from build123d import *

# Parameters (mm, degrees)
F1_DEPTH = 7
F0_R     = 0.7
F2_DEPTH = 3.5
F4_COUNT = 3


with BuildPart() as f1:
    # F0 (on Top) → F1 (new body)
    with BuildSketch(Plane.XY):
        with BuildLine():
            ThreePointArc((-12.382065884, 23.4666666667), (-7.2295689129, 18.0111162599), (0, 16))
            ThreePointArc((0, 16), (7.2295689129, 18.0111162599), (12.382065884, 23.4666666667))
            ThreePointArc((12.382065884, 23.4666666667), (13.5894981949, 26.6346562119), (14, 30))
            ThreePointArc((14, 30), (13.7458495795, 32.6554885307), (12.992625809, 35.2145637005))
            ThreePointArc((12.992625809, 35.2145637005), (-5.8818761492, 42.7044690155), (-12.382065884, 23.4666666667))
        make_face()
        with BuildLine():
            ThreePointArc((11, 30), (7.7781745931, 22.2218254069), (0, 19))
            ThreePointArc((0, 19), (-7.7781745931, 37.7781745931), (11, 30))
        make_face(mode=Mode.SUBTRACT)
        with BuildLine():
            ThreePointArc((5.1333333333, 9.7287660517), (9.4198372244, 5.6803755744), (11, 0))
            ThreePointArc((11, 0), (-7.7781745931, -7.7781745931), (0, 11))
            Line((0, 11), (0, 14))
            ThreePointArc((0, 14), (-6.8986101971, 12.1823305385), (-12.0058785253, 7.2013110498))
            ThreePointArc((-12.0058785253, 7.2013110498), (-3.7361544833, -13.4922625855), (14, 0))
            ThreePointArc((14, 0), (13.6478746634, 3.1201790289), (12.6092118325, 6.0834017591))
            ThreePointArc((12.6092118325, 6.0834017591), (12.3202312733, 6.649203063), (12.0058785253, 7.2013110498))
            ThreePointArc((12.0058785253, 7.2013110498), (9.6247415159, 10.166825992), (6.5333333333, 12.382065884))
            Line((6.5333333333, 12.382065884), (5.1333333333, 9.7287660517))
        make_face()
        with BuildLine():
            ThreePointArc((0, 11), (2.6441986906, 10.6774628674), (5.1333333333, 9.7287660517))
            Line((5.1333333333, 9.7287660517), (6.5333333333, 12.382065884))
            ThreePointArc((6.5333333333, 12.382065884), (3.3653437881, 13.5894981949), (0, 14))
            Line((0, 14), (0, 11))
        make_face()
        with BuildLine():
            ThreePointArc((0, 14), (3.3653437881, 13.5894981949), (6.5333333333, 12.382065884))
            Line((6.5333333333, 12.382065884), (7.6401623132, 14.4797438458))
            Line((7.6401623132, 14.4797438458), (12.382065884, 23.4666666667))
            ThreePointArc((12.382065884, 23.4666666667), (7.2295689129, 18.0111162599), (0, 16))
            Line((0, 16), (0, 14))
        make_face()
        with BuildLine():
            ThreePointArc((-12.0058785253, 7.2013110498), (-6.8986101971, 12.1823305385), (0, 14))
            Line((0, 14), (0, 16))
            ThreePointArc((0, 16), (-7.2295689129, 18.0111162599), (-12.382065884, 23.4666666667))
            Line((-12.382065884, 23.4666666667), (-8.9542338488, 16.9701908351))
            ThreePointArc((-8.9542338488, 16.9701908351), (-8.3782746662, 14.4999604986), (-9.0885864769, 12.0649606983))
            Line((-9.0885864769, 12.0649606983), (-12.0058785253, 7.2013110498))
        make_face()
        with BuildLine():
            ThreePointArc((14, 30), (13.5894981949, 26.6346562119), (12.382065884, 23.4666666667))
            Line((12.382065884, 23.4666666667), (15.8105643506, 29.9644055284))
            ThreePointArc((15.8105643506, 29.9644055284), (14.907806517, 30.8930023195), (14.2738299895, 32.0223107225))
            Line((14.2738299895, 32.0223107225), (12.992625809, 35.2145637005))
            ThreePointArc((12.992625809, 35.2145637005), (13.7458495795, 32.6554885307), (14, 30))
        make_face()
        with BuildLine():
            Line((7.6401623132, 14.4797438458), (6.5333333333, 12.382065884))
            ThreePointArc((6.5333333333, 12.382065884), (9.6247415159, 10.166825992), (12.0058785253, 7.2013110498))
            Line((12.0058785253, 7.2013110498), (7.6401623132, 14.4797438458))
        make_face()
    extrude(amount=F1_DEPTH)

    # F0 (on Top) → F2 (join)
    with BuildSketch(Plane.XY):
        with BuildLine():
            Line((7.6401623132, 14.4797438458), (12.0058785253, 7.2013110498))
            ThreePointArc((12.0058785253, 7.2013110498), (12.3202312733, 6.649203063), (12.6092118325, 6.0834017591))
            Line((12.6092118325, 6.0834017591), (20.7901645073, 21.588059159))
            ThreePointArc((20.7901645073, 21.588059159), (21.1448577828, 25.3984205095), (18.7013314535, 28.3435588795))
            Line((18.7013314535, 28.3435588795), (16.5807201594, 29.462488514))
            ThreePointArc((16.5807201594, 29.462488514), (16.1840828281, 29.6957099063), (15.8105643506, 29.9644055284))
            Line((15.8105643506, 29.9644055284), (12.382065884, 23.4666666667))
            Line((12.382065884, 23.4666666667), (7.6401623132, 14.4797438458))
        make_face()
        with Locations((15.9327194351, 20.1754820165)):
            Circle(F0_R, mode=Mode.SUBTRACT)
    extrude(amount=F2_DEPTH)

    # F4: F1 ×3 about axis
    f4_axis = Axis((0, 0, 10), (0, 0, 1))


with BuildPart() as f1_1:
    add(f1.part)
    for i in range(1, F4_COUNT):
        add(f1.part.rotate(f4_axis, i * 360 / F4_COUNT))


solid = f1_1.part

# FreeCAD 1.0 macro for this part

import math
import FreeCAD as App
import Part
import Sketcher
Q = App.Units.Quantity

doc = App.newDocument("Part")
body = doc.addObject("PartDesign::Body", "Body")

sketch1 = body.newObject("Sketcher::SketchObject", "Sketch")
sketch1.AttachmentSupport = (doc.getObject("XY_Plane"), [""])
sketch1.MapMode = "FlatFace"
sketch1.addGeometry([
    Part.ArcOfCircle(Part.Circle(App.Vector(0, 0, 0), App.Vector(0, 0, 1), 14), math.radians(149), math.radians(360)),
    Part.ArcOfCircle(Part.Circle(App.Vector(0, 0, 0), App.Vector(0, 0, 1), 14), math.radians(0), math.radians(26)),
    Part.ArcOfCircle(Part.Circle(App.Vector(0, 0, 0), App.Vector(0, 0, 1), 14), math.radians(25.76), math.radians(30.96)),
    Part.LineSegment(App.Vector(12, 7.2, 0), App.Vector(7.6, 14.5, 0)),
    Part.LineSegment(App.Vector(7.6, 14.5, 0), App.Vector(12.4, 23.5, 0)),
    Part.LineSegment(App.Vector(12.4, 23.5, 0), App.Vector(15.8, 30, 0)),
    Part.ArcOfCircle(Part.Circle(App.Vector(18.9, 33.9, 0), App.Vector(0, 0, 1), 5), math.radians(-158), math.radians(-128)),
    Part.LineSegment(App.Vector(14.3, 32, 0), App.Vector(13, 35.2, 0)),
    Part.ArcOfCircle(Part.Circle(App.Vector(0, 30, 0), App.Vector(0, 0, 1), 14), math.radians(22), math.radians(208)),
    Part.LineSegment(App.Vector(-12.4, 23.5, 0), App.Vector(-9, 17, 0)),
    Part.ArcOfCircle(Part.Circle(App.Vector(-13.4, 14.6, 0), App.Vector(0, 0, 1), 5), math.radians(-31), math.radians(28)),
    Part.LineSegment(App.Vector(-9.1, 12.1, 0), App.Vector(-12, 7.2, 0)),
    Part.ArcOfCircle(Part.Circle(App.Vector(0, 30, 0), App.Vector(0, 0, 1), 11), math.radians(0), math.radians(270)),
    Part.ArcOfCircle(Part.Circle(App.Vector(0, 30, 0), App.Vector(0, 0, 1), 11), math.radians(-90), math.radians(0)),
    Part.ArcOfCircle(Part.Circle(App.Vector(0, 0, 0), App.Vector(0, 0, 1), 11), math.radians(0), math.radians(62)),
    Part.ArcOfCircle(Part.Circle(App.Vector(0, 0, 0), App.Vector(0, 0, 1), 11), math.radians(90), math.radians(360)),
    Part.ArcOfCircle(Part.Circle(App.Vector(0, 0, 0), App.Vector(0, 0, 1), 11), math.radians(62), math.radians(90)),
], False)
sketch1.addConstraint([
    Sketcher.Constraint("Tangent", 0, 2, 1, 1),
    Sketcher.Constraint("Tangent", 1, 2, 2, 1),
    Sketcher.Constraint("Tangent", 2, 2, 3, 1),
    Sketcher.Constraint("Coincident", 3, 2, 4, 1),
    Sketcher.Constraint("Coincident", 4, 2, 5, 1),
    Sketcher.Constraint("Coincident", 5, 2, 6, 2),
    Sketcher.Constraint("Tangent", 6, 1, 7, 1),
    Sketcher.Constraint("Tangent", 7, 2, 8, 1),
    Sketcher.Constraint("Tangent", 8, 2, 9, 1),
    Sketcher.Constraint("Tangent", 9, 2, 10, 2),
    Sketcher.Constraint("Tangent", 10, 1, 11, 1),
    Sketcher.Constraint("Tangent", 11, 2, 0, 1),
    Sketcher.Constraint("Tangent", 12, 1, 13, 2),
    Sketcher.Constraint("Coincident", 13, 1, 12, 2),
    Sketcher.Constraint("Tangent", 14, 1, 15, 2),
    Sketcher.Constraint("Tangent", 15, 1, 16, 2),
    Sketcher.Constraint("Tangent", 16, 1, 14, 2),
    Sketcher.Constraint("Coincident", 0, 3, -1, 1),
    Sketcher.Constraint("Coincident", 2, 3, -1, 1),
    Sketcher.Constraint("Coincident", 14, 3, -1, 1),
    Sketcher.Constraint("Coincident", 12, 3, 8, 3),
    Sketcher.Constraint("Equal", 2, 8),
    Sketcher.Constraint("Equal", 6, 10),
    Sketcher.Constraint("Equal", 13, 14),
    Sketcher.Constraint("Symmetric", 4, 2, 8, 2, -2),
    Sketcher.Constraint("PointOnObject", 8, 3, -2),
    Sketcher.Constraint("PointOnObject", 0, 2, -1),
    Sketcher.Constraint("PointOnObject", 13, 1, -2),
    Sketcher.Constraint("PointOnObject", 14, 1, -1),
    Sketcher.Constraint("PointOnObject", 15, 1, -2),
    Sketcher.Constraint("Parallel", 4, 5),
    Sketcher.Constraint("Horizontal", 2, 2, 11, 2),
    Sketcher.Constraint("Horizontal", 13, 3, 12, 1),
    Sketcher.Constraint("Radius", 0, Q("14 mm")),
    Sketcher.Constraint("Radius", 6, Q("5 mm")),
    Sketcher.Constraint("Radius", 12, Q("11 mm")),
    Sketcher.Constraint("DistanceY", -1, 1, 8, 3, Q("30 mm")),
    Sketcher.Constraint("DistanceX", 10, 3, -1, 1, Q("13.3764 mm")),
    Sketcher.Constraint("DistanceY", -1, 1, 1, 2, Q("6.083402 mm")),
    Sketcher.Constraint("DistanceX", 4, 2, 5, 2, Q("3.428498 mm")),
    Sketcher.Constraint("Distance", 4, Q("10.161222 mm")),
    Sketcher.Constraint("Distance", 11, Q("5.67148 mm")),
    Sketcher.Constraint("DistanceX", -1, 1, 6, 1, Q("14.27383 mm")),
    Sketcher.Constraint("DistanceX", 16, 1, 3, 2, Q("2.506829 mm")),
])
pad1 = body.newObject("PartDesign::Pad", "Pad")
pad1.Profile = sketch1
pad1.Length = 7

sketch2 = body.newObject("Sketcher::SketchObject", "Sketch001")
sketch2.AttachmentSupport = (doc.getObject("XY_Plane"), [""])
sketch2.MapMode = "FlatFace"
sketch2.addGeometry([
    Part.LineSegment(App.Vector(7.6, 14.5, 0), App.Vector(12, 7.2, 0)),
    Part.ArcOfCircle(Part.Circle(App.Vector(0, 0, 0), App.Vector(0, 0, 1), 14), math.radians(25.76), math.radians(30.96)),
    Part.LineSegment(App.Vector(12.6, 6.1, 0), App.Vector(20.8, 21.6, 0)),
    Part.ArcOfCircle(Part.Circle(App.Vector(16.4, 23.9, 0), App.Vector(0, 0, 1), 5), math.radians(-28), math.radians(62)),
    Part.LineSegment(App.Vector(18.7, 28.3, 0), App.Vector(16.6, 29.5, 0)),
    Part.ArcOfCircle(Part.Circle(App.Vector(18.9, 33.9, 0), App.Vector(0, 0, 1), 5), math.radians(-128.37), math.radians(-117.82)),
    Part.LineSegment(App.Vector(15.8, 30, 0), App.Vector(12.4, 23.5, 0)),
    Part.LineSegment(App.Vector(12.4, 23.5, 0), App.Vector(7.6, 14.5, 0)),
    Part.Circle(App.Vector(15.9, 20.2, 0), App.Vector(0, 0, 1), 0.7),
], False)
sketch2.addConstraint([
    Sketcher.Constraint("Tangent", 0, 2, 1, 2),
    Sketcher.Constraint("Coincident", 1, 1, 2, 1),
    Sketcher.Constraint("Tangent", 2, 2, 3, 1),
    Sketcher.Constraint("Tangent", 3, 2, 4, 1),
    Sketcher.Constraint("Tangent", 4, 2, 5, 2),
    Sketcher.Constraint("Coincident", 5, 1, 6, 1),
    Sketcher.Constraint("Coincident", 6, 2, 7, 1),
    Sketcher.Constraint("Coincident", 7, 2, 0, 1),
    Sketcher.Constraint("Coincident", 1, 3, -1, 1),
    Sketcher.Constraint("Equal", 3, 5),
    Sketcher.Constraint("Perpendicular", 2, 4),
    Sketcher.Constraint("Perpendicular", 4, 6),
    Sketcher.Constraint("Parallel", 6, 7),
    Sketcher.Constraint("Radius", 1, Q("14 mm")),
    Sketcher.Constraint("Radius", 3, Q("5 mm")),
    Sketcher.Constraint("Diameter", 8, Q("1.4 mm")),
    Sketcher.Constraint("DistanceX", -1, 1, 3, 3, Q("16.367998 mm")),
    Sketcher.Constraint("DistanceX", 8, 3, 4, 2, Q("0.648001 mm")),
    Sketcher.Constraint("DistanceY", -1, 1, 1, 1, Q("6.083402 mm")),
    Sketcher.Constraint("DistanceY", 2, 2, 3, 2, Q("6.7555 mm")),
    Sketcher.Constraint("DistanceX", 5, 1, 2, 2, Q("4.9796 mm")),
    Sketcher.Constraint("DistanceX", 6, 2, 5, 1, Q("3.428498 mm")),
    Sketcher.Constraint("Distance", 7, Q("10.161222 mm")),
    Sketcher.Constraint("DistanceX", -1, 1, 8, 3, Q("15.932719 mm")),
    Sketcher.Constraint("DistanceY", 8, 3, 3, 3, Q("3.74591 mm")),
])
pad2 = body.newObject("PartDesign::Pad", "Pad001")
pad2.Profile = sketch2
pad2.Length = 3.5
body2 = doc.addObject("PartDesign::Body", "Body001")
doc.recompute()

body2.BaseFeature = body
doc.recompute()

body3 = doc.addObject("PartDesign::Body", "Body002")
body3.BaseFeature = body
body3.Placement = App.Placement(App.Vector(0, 0, 0), App.Rotation(App.Vector(0, 0, 1), 120))
boolean = body2.newObject("PartDesign::Boolean", "Boolean")
boolean.Type = "Fuse"
boolean.addObjects([body3])
doc.recompute()

body.Placement = App.Placement(App.Vector(0, 0, 0), App.Rotation(App.Vector(0, 0, 1), 240))
boolean2 = body2.newObject("PartDesign::Boolean", "Boolean001")
boolean2.Type = "Fuse"
boolean2.addObjects([body])

doc.recompute()
